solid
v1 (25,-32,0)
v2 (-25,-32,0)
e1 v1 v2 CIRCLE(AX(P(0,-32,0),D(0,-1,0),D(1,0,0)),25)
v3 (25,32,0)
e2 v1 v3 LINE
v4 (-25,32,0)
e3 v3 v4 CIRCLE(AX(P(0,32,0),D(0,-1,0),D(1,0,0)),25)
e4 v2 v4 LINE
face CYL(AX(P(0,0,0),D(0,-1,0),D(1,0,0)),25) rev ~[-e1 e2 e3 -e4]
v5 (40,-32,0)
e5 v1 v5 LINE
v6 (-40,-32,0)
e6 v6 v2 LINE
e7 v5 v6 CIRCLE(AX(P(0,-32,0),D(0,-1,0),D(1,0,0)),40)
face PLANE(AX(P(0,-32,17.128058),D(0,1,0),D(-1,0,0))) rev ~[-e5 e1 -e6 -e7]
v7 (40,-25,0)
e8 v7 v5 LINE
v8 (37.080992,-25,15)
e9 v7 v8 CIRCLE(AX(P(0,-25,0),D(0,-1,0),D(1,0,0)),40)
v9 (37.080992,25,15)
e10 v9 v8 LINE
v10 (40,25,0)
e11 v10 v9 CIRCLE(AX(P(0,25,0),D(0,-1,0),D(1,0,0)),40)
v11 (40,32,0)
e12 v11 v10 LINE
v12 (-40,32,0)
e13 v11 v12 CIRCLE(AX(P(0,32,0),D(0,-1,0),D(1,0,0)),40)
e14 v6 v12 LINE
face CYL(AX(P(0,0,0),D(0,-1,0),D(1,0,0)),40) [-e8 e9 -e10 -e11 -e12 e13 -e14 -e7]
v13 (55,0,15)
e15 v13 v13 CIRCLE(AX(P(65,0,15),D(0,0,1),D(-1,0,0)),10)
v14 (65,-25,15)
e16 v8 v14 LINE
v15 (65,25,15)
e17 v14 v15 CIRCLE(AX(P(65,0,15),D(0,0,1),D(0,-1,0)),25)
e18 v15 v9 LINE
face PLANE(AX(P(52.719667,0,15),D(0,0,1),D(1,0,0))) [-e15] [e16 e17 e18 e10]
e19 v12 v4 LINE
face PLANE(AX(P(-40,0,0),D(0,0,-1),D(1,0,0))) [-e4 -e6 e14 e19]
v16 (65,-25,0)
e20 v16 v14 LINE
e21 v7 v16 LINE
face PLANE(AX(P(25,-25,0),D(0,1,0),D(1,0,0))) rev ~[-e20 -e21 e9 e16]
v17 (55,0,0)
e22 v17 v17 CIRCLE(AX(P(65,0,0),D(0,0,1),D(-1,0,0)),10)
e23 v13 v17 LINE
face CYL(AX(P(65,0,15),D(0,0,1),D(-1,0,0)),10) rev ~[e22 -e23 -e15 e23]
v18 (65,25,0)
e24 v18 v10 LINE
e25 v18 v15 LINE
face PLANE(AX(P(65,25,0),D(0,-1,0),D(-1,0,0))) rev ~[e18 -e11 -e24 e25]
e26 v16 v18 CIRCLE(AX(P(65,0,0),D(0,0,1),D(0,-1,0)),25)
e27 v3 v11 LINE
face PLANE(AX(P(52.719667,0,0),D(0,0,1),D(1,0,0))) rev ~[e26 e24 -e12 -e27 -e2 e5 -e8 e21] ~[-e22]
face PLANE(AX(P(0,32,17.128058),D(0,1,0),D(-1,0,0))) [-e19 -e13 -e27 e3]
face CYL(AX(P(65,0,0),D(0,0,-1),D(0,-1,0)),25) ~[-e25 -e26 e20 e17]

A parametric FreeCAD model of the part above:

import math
import FreeCAD as App
import Part
import Sketcher
from FreeCAD import Vector
Q = App.Units.Quantity

doc = App.newDocument("Part")
params = doc.addObject("Spreadsheet::Sheet", "Params")
for row, (alias, value) in enumerate([
    ("sketch1_radius", "25 mm"),
    ("sketch1_radius2", "40 mm"),
    ("pad1_length", "64 mm"),
    ("sketch2_radius", "25 mm"),
    ("sketch2_width", "40 mm"),
    ("pad2_length", "15 mm"),
    ("sketch3_diameter", "20 mm"),
], start=1):
    params.set(f"A{row}", alias)
    params.set(f"B{row}", "=" + value)
    params.setAlias(f"B{row}", alias)

body = doc.addObject("PartDesign::Body", "Body")

# Sketch on XZ plane
sketch1 = doc.addObject("Sketcher::SketchObject", "Sketch")
body.addObject(sketch1)
sketch1.AttachmentSupport = (doc.XZ_Plane, [""])
sketch1.MapMode = "FlatFace"
sketch1.addGeometry([
    Part.ArcOfCircle(Part.Circle(Vector(0, 0, 0), Vector(0, 0, 1), 25), math.radians(0), math.radians(180)),
    Part.LineSegment(Vector(25, 0, 0), Vector(40, 0, 0)),
    Part.ArcOfCircle(Part.Circle(Vector(0, 0, 0), Vector(0, 0, 1), 40), math.radians(0), math.radians(180)),
    Part.LineSegment(Vector(-40, 0, 0), Vector(-25, 0, 0)),
], False)
sketch1.addConstraint([
    Sketcher.Constraint("Coincident", 0, 1, 1, 1),
    Sketcher.Constraint("Coincident", 1, 2, 2, 1),
    Sketcher.Constraint("Coincident", 2, 2, 3, 1),
    Sketcher.Constraint("Coincident", 3, 2, 0, 2),
    Sketcher.Constraint("Horizontal", 1),
    Sketcher.Constraint("Horizontal", 3),
    Sketcher.Constraint("Coincident", 0, 3, -1, 1),
    Sketcher.Constraint("Coincident", 2, 3, -1, 1),
    Sketcher.Constraint("PointOnObject", 0, 1, -1),
    Sketcher.Constraint("PointOnObject", 2, 2, -1),
    Sketcher.Constraint("Radius", 0, Q("25 mm")),
    Sketcher.Constraint("Radius", 2, Q("40 mm")),
])
sketch1.setExpression("Constraints[10]", "Params.sketch1_radius")
sketch1.setExpression("Constraints[11]", "Params.sketch1_radius2")
pad1 = doc.addObject("PartDesign::Pad", "Pad")
body.addObject(pad1)
pad1.Profile = sketch1
pad1.setExpression("Length", "Params.pad1_length")
pad1.Midplane = True

# Sketch on XY plane
sketch2 = doc.addObject("Sketcher::SketchObject", "Sketch001")
body.addObject(sketch2)
sketch2.AttachmentSupport = (doc.XY_Plane, [""])
sketch2.MapMode = "FlatFace"
sketch2.addGeometry([
    Part.LineSegment(Vector(65, 25, 0), Vector(25, 25, 0)),
    Part.LineSegment(Vector(25, 25, 0), Vector(25, -25, 0)),
    Part.LineSegment(Vector(25, -25, 0), Vector(65, -25, 0)),
    Part.ArcOfCircle(Part.Circle(Vector(65, 0, 0), Vector(0, 0, 1), 25), math.radians(-90), math.radians(90)),
], False)
sketch2.addConstraint([
    Sketcher.Constraint("Coincident", 0, 2, 1, 1),
    Sketcher.Constraint("Coincident", 1, 2, 2, 1),
    Sketcher.Constraint("Tangent", 2, 2, 3, 1),
    Sketcher.Constraint("Tangent", 3, 2, 0, 1),
    Sketcher.Constraint("Horizontal", 0),
    Sketcher.Constraint("Vertical", 1),
    Sketcher.Constraint("Horizontal", 2),
    Sketcher.Constraint("PointOnObject", 3, 3, -1),
    Sketcher.Constraint("Radius", 3, Q("25 mm")),
    Sketcher.Constraint("DistanceX", 0, 2, 0, 1, Q("40 mm")),
    Sketcher.Constraint("DistanceX", -1, 1, 3, 3, Q("65 mm")),
])
sketch2.setExpression("Constraints[8]", "Params.sketch2_radius")
sketch2.setExpression("Constraints[9]", "Params.sketch2_width")
pad2 = doc.addObject("PartDesign::Pad", "Pad001")
body.addObject(pad2)
pad2.Profile = sketch2
pad2.setExpression("Length", "Params.pad2_length")

# Sketch on XY plane
sketch3 = doc.addObject("Sketcher::SketchObject", "Sketch002")
body.addObject(sketch3)
sketch3.AttachmentSupport = (doc.XY_Plane, [""])
sketch3.MapMode = "FlatFace"
sketch3.AttachmentOffset = App.Placement(Vector(0, 0, 15), App.Rotation())
sketch3.addGeometry(Part.Circle(Vector(65, 0, 0), Vector(0, 0, 1), 10), False)
sketch3.addConstraint([
    Sketcher.Constraint("PointOnObject", 0, 3, -1),
    Sketcher.Constraint("Diameter", 0, Q("20 mm")),
    Sketcher.Constraint("DistanceX", -1, 1, 0, 3, Q("65 mm")),
])
sketch3.setExpression("Constraints[1]", "Params.sketch3_diameter")
pocket1 = doc.addObject("PartDesign::Pocket", "Pocket")
body.addObject(pocket1)
pocket1.Profile = sketch3
pocket1.Type = "ThroughAll"

doc.recompute()
